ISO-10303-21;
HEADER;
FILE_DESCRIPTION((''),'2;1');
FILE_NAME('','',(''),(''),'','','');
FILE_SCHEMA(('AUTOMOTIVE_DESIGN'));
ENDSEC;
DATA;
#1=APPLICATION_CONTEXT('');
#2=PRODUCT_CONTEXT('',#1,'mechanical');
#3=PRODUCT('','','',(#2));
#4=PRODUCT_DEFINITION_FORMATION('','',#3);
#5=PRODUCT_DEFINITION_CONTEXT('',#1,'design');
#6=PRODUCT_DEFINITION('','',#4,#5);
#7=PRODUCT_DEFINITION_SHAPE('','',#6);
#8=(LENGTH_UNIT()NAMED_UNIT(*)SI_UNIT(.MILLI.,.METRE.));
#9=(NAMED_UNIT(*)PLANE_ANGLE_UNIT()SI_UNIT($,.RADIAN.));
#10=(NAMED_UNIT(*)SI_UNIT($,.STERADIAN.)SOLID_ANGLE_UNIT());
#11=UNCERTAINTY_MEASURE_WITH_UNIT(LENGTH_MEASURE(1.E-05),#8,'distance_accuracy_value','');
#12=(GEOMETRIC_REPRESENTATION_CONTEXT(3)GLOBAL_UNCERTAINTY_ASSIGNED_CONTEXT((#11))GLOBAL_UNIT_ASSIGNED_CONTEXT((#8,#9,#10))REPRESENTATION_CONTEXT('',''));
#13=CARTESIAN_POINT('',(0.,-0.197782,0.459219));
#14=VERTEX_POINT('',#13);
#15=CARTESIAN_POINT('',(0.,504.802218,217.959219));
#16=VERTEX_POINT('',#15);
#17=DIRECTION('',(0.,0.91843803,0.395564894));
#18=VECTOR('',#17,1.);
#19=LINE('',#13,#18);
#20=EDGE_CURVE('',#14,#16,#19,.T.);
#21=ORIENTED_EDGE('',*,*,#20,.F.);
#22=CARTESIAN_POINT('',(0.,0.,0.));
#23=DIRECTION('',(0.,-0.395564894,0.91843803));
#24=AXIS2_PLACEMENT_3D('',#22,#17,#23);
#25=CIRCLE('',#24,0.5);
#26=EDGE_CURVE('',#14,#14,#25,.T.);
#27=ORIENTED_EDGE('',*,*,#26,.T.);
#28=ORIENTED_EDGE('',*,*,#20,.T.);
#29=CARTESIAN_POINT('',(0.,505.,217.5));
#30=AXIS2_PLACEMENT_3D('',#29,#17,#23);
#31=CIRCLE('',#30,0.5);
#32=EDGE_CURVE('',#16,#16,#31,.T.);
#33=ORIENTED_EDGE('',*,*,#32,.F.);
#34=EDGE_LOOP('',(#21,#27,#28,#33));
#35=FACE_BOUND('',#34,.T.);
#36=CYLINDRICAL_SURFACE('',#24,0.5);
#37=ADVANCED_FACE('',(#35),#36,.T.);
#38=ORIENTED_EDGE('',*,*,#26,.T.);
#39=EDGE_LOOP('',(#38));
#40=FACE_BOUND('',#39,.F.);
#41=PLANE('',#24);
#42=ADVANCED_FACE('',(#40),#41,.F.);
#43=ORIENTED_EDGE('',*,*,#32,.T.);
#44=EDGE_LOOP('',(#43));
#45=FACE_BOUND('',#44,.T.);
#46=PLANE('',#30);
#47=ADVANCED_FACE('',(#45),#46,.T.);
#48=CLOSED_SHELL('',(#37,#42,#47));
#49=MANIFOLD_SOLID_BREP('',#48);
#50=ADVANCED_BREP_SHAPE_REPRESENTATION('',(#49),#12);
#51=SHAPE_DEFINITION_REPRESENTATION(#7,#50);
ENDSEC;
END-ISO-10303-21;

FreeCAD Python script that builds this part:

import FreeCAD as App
import Part
import Sketcher

V = App.Vector
Q = App.Units.Quantity

doc = App.newDocument("Part")
body = doc.addObject("PartDesign::Body", "Body")

sketch1 = body.newObject("Sketcher::SketchObject", "Sketch")
sketch1.Placement = App.Placement(V(0, 0, 0), App.Rotation(V(0, -0.395564894, 0.91843803), V(1, 0, 0), V(0, 0.91843803, 0.395564894), "ZXY"))
sketch1.addGeometry(Part.Circle(V(0, 0, 0), V(0, 0, 1), 0.5), False)
sketch1.addConstraint([
    Sketcher.Constraint("Coincident", 0, 3, -1, 1),
    Sketcher.Constraint("Diameter", 0, Q("1 mm")),
])

sketch2 = body.newObject("Sketcher::SketchObject", "Sketch001")
sketch2.Placement = App.Placement(V(0, 0, 0), App.Rotation(V(0, -0.91843803, -0.395564894), V(1, 0, 0), V(0, -0.395564894, 0.91843803), "ZXY"))
sketch2.addGeometry(Part.LineSegment(V(0, 0, 0), V(-550, 0, 0)), False)
sketch2.addConstraint([
    Sketcher.Constraint("Horizontal", 0),
    Sketcher.Constraint("Coincident", 0, 1, -1, 1),
    Sketcher.Constraint("DistanceX", 0, 2, 0, 1, Q("549.84657 mm")),
])
doc.recompute()

additivepipe = body.newObject("PartDesign::AdditivePipe", "AdditivePipe")
additivepipe.Profile = sketch1
additivepipe.Spine = (sketch2, ["Edge1"])

doc.recompute()
